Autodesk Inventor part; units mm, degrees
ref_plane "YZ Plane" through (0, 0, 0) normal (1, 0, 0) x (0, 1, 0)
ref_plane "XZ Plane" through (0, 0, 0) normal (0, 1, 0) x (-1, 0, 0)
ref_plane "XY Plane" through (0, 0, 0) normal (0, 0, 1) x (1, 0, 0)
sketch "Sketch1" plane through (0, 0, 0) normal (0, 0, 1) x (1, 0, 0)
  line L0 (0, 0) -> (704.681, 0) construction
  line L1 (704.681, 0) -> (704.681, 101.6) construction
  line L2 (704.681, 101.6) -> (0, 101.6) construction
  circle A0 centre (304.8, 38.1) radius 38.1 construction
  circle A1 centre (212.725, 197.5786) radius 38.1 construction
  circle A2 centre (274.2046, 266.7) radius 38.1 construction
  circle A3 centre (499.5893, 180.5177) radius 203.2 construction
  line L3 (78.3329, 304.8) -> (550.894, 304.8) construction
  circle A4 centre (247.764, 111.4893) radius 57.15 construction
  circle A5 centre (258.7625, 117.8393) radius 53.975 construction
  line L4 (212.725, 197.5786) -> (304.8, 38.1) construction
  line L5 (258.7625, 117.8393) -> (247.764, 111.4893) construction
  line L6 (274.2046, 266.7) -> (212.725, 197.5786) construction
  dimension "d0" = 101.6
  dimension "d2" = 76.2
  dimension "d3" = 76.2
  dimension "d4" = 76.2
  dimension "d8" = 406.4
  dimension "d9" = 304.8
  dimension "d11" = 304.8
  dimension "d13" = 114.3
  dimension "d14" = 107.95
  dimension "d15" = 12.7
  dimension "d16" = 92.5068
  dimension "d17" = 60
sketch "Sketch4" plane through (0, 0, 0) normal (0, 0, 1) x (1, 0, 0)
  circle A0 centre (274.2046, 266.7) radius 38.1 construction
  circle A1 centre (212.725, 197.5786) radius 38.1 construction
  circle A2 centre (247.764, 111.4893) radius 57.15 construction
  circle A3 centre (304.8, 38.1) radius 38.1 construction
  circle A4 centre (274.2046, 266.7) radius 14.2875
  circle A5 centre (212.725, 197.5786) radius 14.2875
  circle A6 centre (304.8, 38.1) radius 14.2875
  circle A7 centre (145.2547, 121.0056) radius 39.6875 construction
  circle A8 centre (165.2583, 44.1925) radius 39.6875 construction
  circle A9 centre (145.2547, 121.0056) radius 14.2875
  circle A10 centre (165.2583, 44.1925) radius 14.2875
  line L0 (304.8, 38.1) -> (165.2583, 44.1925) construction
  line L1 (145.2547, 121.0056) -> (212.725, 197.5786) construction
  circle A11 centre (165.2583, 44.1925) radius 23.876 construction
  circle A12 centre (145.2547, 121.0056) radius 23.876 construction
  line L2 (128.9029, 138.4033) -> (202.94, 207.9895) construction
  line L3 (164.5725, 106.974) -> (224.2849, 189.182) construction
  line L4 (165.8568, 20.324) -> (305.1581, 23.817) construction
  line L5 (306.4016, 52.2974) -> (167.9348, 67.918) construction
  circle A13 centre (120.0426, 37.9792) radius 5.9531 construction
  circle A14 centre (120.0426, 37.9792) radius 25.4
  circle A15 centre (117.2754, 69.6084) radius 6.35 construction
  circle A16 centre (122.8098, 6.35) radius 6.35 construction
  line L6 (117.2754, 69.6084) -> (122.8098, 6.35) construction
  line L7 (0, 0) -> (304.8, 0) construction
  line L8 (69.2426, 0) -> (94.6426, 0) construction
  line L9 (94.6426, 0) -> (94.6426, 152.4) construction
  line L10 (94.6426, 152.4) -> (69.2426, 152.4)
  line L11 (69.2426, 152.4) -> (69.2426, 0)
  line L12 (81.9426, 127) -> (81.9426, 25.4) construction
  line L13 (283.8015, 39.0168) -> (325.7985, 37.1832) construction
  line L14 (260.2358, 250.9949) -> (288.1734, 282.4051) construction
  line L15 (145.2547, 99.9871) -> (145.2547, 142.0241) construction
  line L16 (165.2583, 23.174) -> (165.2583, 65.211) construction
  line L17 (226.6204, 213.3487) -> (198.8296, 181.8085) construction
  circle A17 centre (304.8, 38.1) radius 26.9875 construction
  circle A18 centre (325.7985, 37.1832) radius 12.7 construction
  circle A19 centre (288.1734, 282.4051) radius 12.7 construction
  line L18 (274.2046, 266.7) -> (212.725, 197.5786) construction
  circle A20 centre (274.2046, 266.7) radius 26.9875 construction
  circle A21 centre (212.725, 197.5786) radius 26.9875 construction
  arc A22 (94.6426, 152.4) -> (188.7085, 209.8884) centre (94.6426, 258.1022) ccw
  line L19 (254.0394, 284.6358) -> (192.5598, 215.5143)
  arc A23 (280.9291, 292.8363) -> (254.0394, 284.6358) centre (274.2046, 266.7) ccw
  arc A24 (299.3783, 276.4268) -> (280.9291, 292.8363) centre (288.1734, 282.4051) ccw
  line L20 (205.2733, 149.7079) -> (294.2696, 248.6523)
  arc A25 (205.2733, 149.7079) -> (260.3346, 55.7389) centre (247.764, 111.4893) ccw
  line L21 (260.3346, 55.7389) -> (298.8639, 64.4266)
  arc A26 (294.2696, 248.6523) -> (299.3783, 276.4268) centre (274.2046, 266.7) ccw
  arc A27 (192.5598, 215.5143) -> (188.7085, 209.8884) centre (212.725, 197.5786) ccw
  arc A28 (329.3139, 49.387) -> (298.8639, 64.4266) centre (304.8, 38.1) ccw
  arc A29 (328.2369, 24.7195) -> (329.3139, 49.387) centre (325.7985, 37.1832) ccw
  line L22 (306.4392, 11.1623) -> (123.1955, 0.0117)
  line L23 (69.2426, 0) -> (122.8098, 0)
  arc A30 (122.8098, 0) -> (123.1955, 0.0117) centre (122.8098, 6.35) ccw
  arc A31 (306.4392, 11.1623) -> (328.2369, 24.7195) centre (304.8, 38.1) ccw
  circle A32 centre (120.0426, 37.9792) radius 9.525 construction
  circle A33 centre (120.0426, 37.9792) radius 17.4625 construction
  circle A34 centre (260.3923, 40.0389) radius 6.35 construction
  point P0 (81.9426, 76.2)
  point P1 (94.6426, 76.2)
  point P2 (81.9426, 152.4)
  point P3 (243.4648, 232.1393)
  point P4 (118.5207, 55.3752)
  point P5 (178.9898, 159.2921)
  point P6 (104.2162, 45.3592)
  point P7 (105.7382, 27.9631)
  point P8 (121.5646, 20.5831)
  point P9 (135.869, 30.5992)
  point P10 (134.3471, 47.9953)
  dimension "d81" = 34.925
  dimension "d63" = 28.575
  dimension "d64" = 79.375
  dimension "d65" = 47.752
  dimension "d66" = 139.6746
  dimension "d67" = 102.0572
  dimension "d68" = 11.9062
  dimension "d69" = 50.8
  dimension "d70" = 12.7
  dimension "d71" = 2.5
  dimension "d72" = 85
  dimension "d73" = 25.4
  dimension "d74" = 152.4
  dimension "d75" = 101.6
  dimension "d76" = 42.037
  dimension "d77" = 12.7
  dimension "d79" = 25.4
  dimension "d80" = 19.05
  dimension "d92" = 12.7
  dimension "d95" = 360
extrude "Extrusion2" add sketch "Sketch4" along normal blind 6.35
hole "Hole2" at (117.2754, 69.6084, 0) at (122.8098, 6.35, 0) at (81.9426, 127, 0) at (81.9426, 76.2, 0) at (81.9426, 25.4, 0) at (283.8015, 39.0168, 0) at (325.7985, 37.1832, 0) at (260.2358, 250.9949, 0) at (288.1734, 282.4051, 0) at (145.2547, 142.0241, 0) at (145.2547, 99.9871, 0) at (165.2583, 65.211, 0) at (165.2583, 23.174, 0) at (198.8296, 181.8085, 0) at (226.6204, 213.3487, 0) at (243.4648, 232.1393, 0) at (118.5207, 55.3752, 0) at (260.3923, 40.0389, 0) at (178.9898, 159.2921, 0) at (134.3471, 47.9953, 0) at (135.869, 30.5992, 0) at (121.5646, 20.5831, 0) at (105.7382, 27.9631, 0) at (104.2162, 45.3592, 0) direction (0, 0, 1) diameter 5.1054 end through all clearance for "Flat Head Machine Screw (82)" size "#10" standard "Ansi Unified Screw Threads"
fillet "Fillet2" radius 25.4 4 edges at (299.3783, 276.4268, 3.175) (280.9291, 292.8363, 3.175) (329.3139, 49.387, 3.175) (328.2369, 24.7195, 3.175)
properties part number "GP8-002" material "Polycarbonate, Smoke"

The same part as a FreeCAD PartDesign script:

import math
import FreeCAD as App
import Part
import Sketcher
from FreeCAD import Vector
Q = App.Units.Quantity


def edges_at(feature, points):
    """Names of the edges that pass closest to the given points."""
    edges = feature.Shape.Edges
    near = lambda p: min(range(len(edges)), key=lambda i: edges[i].distToShape(Part.Vertex(*p))[0])
    return sorted({f"Edge{near(p) + 1}" for p in points})

doc = App.newDocument("Part")
params = doc.addObject("Spreadsheet::Sheet", "Params")
for row, (alias, value) in enumerate([
    ("sketch1_diameter", "2 in"),
    ("sketch1_radius", "0.5 in"),
    ("sketch1_radius2", "0.5 in"),
    ("sketch1_width", "1 in"),
    ("sketch1_height", "6 in"),
    ("pad1_length", "0.25 in"),
    ("sketch2_diameter", "0.201 in"),
    ("hole_diameter", "0.201 in"),
    ("fillet_radius", "1 in"),
], start=1):
    params.set(f"A{row}", alias)
    params.set(f"B{row}", "=" + value)
    params.setAlias(f"B{row}", alias)

body = doc.addObject("PartDesign::Body", "Body")

# Sketch on XY plane
sketch1 = body.newObject("Sketcher::SketchObject", "Sketch")
sketch1.AttachmentSupport = (doc.getObject("XY_Plane"), [""])
sketch1.MapMode = "FlatFace"
sketch1.addGeometry([
    Part.ArcOfCircle(Part.Circle(Vector(94.6426, 258.1022, 0), Vector(0, 0, 1), 105.7022), math.radians(-90), math.radians(-27.137564)),  # 0
    Part.LineSegment(Vector(94.6426, 152.4, 0), Vector(69.2426, 152.4, 0)),  # 1
    Part.LineSegment(Vector(69.2426, 152.4, 0), Vector(69.2426, 0, 0)),  # 2
    Part.LineSegment(Vector(69.2426, 0, 0), Vector(122.8098, 0, 0)),  # 3
    Part.ArcOfCircle(Part.Circle(Vector(122.809395, 6.376663, 0), Vector(0, 0, 1), 6.376663), math.radians(-89.99636), math.radians(-86.528633)),  # 4
    Part.LineSegment(Vector(123.1955, 0.0117, 0), Vector(306.4392, 11.1623, 0)),  # 5
    Part.ArcOfCircle(Part.Circle(Vector(304.8, 38.1, 0), Vector(0, 0, 1), 26.9875), math.radians(-86.517759), math.radians(-29.722735)),  # 6
    Part.ArcOfCircle(Part.Circle(Vector(325.7985, 37.1832, 0), Vector(0, 0, 1), 12.7), math.radians(-78.930462), math.radians(73.930541)),  # 7
    Part.ArcOfCircle(Part.Circle(Vector(304.8, 38.1, 0), Vector(0, 0, 1), 26.987528), math.radians(24.722887), math.radians(102.706512)),  # 8
    Part.LineSegment(Vector(298.8639, 64.4266, 0), Vector(260.3346, 55.7389, 0)),  # 9
    Part.ArcOfCircle(Part.Circle(Vector(247.764, 111.4893, 0), Vector(0, 0, 1), 57.15), math.radians(138.029949), math.radians(282.706557)),  # 10
    Part.LineSegment(Vector(205.2733, 149.7079, 0), Vector(294.2696, 248.6523, 0)),  # 11
    Part.ArcOfCircle(Part.Circle(Vector(274.2046, 266.7, 0), Vector(0, 0, 1), 26.9875), math.radians(-41.97017), math.radians(21.125903)),  # 12
    Part.ArcOfCircle(Part.Circle(Vector(288.1734, 282.4051, 0), Vector(0, 0, 1), 12.699994), math.radians(-28.081855), math.radians(124.779355)),  # 13
    Part.ArcOfCircle(Part.Circle(Vector(274.2046, 266.7, 0), Vector(0, 0, 1), 26.9875), math.radians(75.571543), math.radians(138.348724)),  # 14
    Part.LineSegment(Vector(254.0394, 284.6358, 0), Vector(192.5598, 215.5143, 0)),  # 15
    Part.ArcOfCircle(Part.Circle(Vector(212.723925, 197.57944, 0), Vector(0, 0, 1), 26.986129), math.radians(138.348699), math.radians(152.862868)),  # 16
    Part.Circle(Vector(120.0426, 37.9792, 0), Vector(0, 0, 1), 25.4),  # 17
    Part.Circle(Vector(165.2583, 44.1925, 0), Vector(0, 0, 1), 14.2875),  # 18
    Part.Circle(Vector(145.2547, 121.0056, 0), Vector(0, 0, 1), 14.2875),  # 19
    Part.Circle(Vector(304.8, 38.1, 0), Vector(0, 0, 1), 14.2875),  # 20
    Part.Circle(Vector(212.725, 197.5786, 0), Vector(0, 0, 1), 14.2875),  # 21
    Part.Circle(Vector(274.2046, 266.7, 0), Vector(0, 0, 1), 14.2875),  # 22
], False)
sketch1.addConstraint([
    Sketcher.Constraint("Coincident", 0, 1, 1, 1),
    Sketcher.Constraint("Coincident", 1, 2, 2, 1),
    Sketcher.Constraint("Coincident", 2, 2, 3, 1),
    Sketcher.Constraint("Coincident", 3, 2, 4, 1),
    Sketcher.Constraint("Coincident", 4, 2, 5, 1),
    Sketcher.Constraint("Coincident", 5, 2, 6, 1),
    Sketcher.Constraint("Coincident", 6, 2, 7, 1),
    Sketcher.Constraint("Coincident", 7, 2, 8, 1),
    Sketcher.Constraint("Coincident", 8, 2, 9, 1),
    Sketcher.Constraint("Coincident", 9, 2, 10, 2),
    Sketcher.Constraint("Coincident", 10, 1, 11, 1),
    Sketcher.Constraint("Coincident", 11, 2, 12, 1),
    Sketcher.Constraint("Coincident", 12, 2, 13, 1),
    Sketcher.Constraint("Coincident", 13, 2, 14, 1),
    Sketcher.Constraint("Coincident", 14, 2, 15, 1),
    Sketcher.Constraint("Coincident", 15, 2, 16, 1),
    Sketcher.Constraint("Coincident", 16, 2, 0, 2),
    Sketcher.Constraint("Horizontal", 1),
    Sketcher.Constraint("Vertical", 2),
    Sketcher.Constraint("Horizontal", 3),
    Sketcher.Constraint("Coincident", 8, 3, 6, 3),
    Sketcher.Constraint("Coincident", 14, 3, 12, 3),
    Sketcher.Constraint("Coincident", 20, 3, 6, 3),
    Sketcher.Constraint("Coincident", 22, 3, 12, 3),
    Sketcher.Constraint("PointOnObject", 2, 2, -1),
    Sketcher.Constraint("Diameter", 17, Q("2 in")),
    Sketcher.Constraint("Radius", 7, Q("0.5 in")),
    Sketcher.Constraint("Radius", 13, Q("0.5 in")),
    Sketcher.Constraint("DistanceX", 1, 2, 1, 1, Q("1 in")),
    Sketcher.Constraint("DistanceY", 2, 2, 2, 1, Q("6 in")),
    Sketcher.Constraint("Diameter", 18, Q("1.125 in")),
    Sketcher.Constraint("Diameter", 19, Q("1.125 in")),
    Sketcher.Constraint("Diameter", 20, Q("1.125 in")),
    Sketcher.Constraint("Diameter", 21, Q("1.125 in")),
    Sketcher.Constraint("Diameter", 22, Q("1.125 in")),
    Sketcher.Constraint("DistanceX", 0, 1, 17, 3, Q("1 in")),
    Sketcher.Constraint("DistanceX", 1, 2, 0, 3, Q("1 in")),
    Sketcher.Constraint("Radius", 10, Q("2.25 in")),
    Sketcher.Constraint("DistanceX", -1, 1, 6, 3, Q("12 in")),
    Sketcher.Constraint("Radius", 6, Q("1.0625 in")),
    Sketcher.Constraint("Radius", 8, Q("1.0625 in")),
    Sketcher.Constraint("Radius", 12, Q("1.0625 in")),
    Sketcher.Constraint("Radius", 14, Q("1.0625 in")),
    Sketcher.Constraint("DistanceY", 6, 3, 12, 3, Q("9 in")),
    Sketcher.Constraint("DistanceY", -1, 1, 6, 3, Q("1.5 in")),
    Sketcher.Constraint("Radius", 0, Q("4.1615 in")),
    Sketcher.Constraint("Radius", 4, Q("6.3767 mm")),
    Sketcher.Constraint("Radius", 16, Q("26.9861 mm")),
    Sketcher.Constraint("DistanceX", 13, 3, 11, 2, Q("0.24 in")),
    Sketcher.Constraint("Distance", 15, Q("3.642 in")),
    Sketcher.Constraint("DistanceY", -1, 1, 19, 3, Q("4.764 in")),
    Sketcher.Constraint("DistanceX", -1, 1, 21, 3, Q("8.375 in")),
    Sketcher.Constraint("DistanceY", -1, 1, 13, 2, Q("11.529 in")),
    Sketcher.Constraint("DistanceX", 12, 3, 7, 3, Q("51.594 mm")),
    Sketcher.Constraint("DistanceX", 7, 3, 6, 2, Q("0.096 in")),
    Sketcher.Constraint("DistanceX", 3, 1, 3, 2, Q("53.5672 mm")),
    Sketcher.Constraint("DistanceY", -1, 1, 7, 3, Q("1.4639 in")),
    Sketcher.Constraint("DistanceX", -1, 1, 10, 3, Q("9.7545 in")),
    Sketcher.Constraint("DistanceX", -1, 1, 13, 3, Q("11.3454 in")),
    Sketcher.Constraint("DistanceX", -1, 1, 19, 3, Q("5.7187 in")),
    Sketcher.Constraint("DistanceX", -1, 1, 8, 2, Q("11.7663 in")),
    Sketcher.Constraint("DistanceX", -1, 1, 9, 2, Q("10.2494 in")),
    Sketcher.Constraint("DistanceX", -1, 1, 15, 2, Q("7.5811 in")),
    Sketcher.Constraint("DistanceX", 4, 3, 7, 3, Q("7.9917 in")),
    Sketcher.Constraint("DistanceY", 4, 3, 10, 3, Q("4.1383 in")),
    Sketcher.Constraint("DistanceX", 0, 3, 10, 3, Q("6.0284 in")),
    Sketcher.Constraint("DistanceX", 16, 3, 12, 3, Q("2.4205 in")),
    Sketcher.Constraint("DistanceY", 4, 3, 17, 3, Q("1.2442 in")),
    Sketcher.Constraint("DistanceX", 3, 2, 18, 3, Q("1.6712 in")),
    Sketcher.Constraint("DistanceX", 4, 3, 4, 2, Q("0.0152 in")),
    Sketcher.Constraint("DistanceY", 4, 2, 18, 3, Q("1.7394 in")),
    Sketcher.Constraint("DistanceY", 10, 1, 16, 3, Q("1.8847 in")),
    Sketcher.Constraint("DistanceY", 16, 2, 15, 2, Q("0.2215 in")),
    Sketcher.Constraint("Distance", 5, Q("183.5827 mm")),
    Sketcher.Constraint("DistanceY", -1, 1, 21, 3, Q("197.5786 mm")),
])
sketch1.setExpression("Constraints[25]", "Params.sketch1_diameter")
sketch1.setExpression("Constraints[26]", "Params.sketch1_radius")
sketch1.setExpression("Constraints[27]", "Params.sketch1_radius2")
sketch1.setExpression("Constraints[28]", "Params.sketch1_width")
sketch1.setExpression("Constraints[29]", "Params.sketch1_height")
pad1 = body.newObject("PartDesign::Pad", "Pad")
pad1.Profile = sketch1
pad1.setExpression("Length", "Params.pad1_length")

# Sketch on XY plane
sketch2 = body.newObject("Sketcher::SketchObject", "Sketch001")
sketch2.AttachmentSupport = (doc.getObject("XY_Plane"), [""])
sketch2.MapMode = "FlatFace"
sketch2.addGeometry([
    Part.Circle(Vector(117.2754, 69.6084, 0), Vector(0, 0, 1), 2.5527),  # 0
    Part.Circle(Vector(122.8098, 6.35, 0), Vector(0, 0, 1), 2.5527),  # 1
    Part.Circle(Vector(81.9426, 127, 0), Vector(0, 0, 1), 2.5527),  # 2
    Part.Circle(Vector(81.9426, 76.2, 0), Vector(0, 0, 1), 2.5527),  # 3
    Part.Circle(Vector(81.9426, 25.4, 0), Vector(0, 0, 1), 2.5527),  # 4
    Part.Circle(Vector(283.8015, 39.0168, 0), Vector(0, 0, 1), 2.5527),  # 5
    Part.Circle(Vector(325.7985, 37.1832, 0), Vector(0, 0, 1), 2.5527),  # 6
    Part.Circle(Vector(260.2358, 250.9949, 0), Vector(0, 0, 1), 2.5527),  # 7
    Part.Circle(Vector(288.1734, 282.4051, 0), Vector(0, 0, 1), 2.5527),  # 8
    Part.Circle(Vector(145.2547, 142.0241, 0), Vector(0, 0, 1), 2.5527),  # 9
    Part.Circle(Vector(145.2547, 99.9871, 0), Vector(0, 0, 1), 2.5527),  # 10
    Part.Circle(Vector(165.2583, 65.211, 0), Vector(0, 0, 1), 2.5527),  # 11
    Part.Circle(Vector(165.2583, 23.174, 0), Vector(0, 0, 1), 2.5527),  # 12
    Part.Circle(Vector(198.8296, 181.8085, 0), Vector(0, 0, 1), 2.5527),  # 13
    Part.Circle(Vector(226.6204, 213.3487, 0), Vector(0, 0, 1), 2.5527),  # 14
    Part.Circle(Vector(243.4648, 232.1393, 0), Vector(0, 0, 1), 2.5527),  # 15
    Part.Circle(Vector(118.5207, 55.3752, 0), Vector(0, 0, 1), 2.5527),  # 16
    Part.Circle(Vector(260.3923, 40.0389, 0), Vector(0, 0, 1), 2.5527),  # 17
    Part.Circle(Vector(178.9898, 159.2921, 0), Vector(0, 0, 1), 2.5527),  # 18
    Part.Circle(Vector(134.3471, 47.9953, 0), Vector(0, 0, 1), 2.5527),  # 19
    Part.Circle(Vector(135.869, 30.5992, 0), Vector(0, 0, 1), 2.5527),  # 20
    Part.Circle(Vector(121.5646, 20.5831, 0), Vector(0, 0, 1), 2.5527),  # 21
    Part.Circle(Vector(105.7382, 27.9631, 0), Vector(0, 0, 1), 2.5527),  # 22
    Part.Circle(Vector(104.2162, 45.3592, 0), Vector(0, 0, 1), 2.5527),  # 23
], False)
sketch2.addConstraint([
    Sketcher.Constraint("Equal", 0, 1),
    Sketcher.Constraint("Equal", 1, 2),
    Sketcher.Constraint("Equal", 2, 3),
    Sketcher.Constraint("Equal", 3, 4),
    Sketcher.Constraint("Equal", 4, 5),
    Sketcher.Constraint("Equal", 5, 6),
    Sketcher.Constraint("Equal", 6, 7),
    Sketcher.Constraint("Equal", 7, 8),
    Sketcher.Constraint("Equal", 8, 9),
    Sketcher.Constraint("Equal", 9, 10),
    Sketcher.Constraint("Equal", 10, 11),
    Sketcher.Constraint("Equal", 11, 12),
    Sketcher.Constraint("Equal", 12, 13),
    Sketcher.Constraint("Equal", 13, 14),
    Sketcher.Constraint("Equal", 14, 15),
    Sketcher.Constraint("Equal", 15, 16),
    Sketcher.Constraint("Equal", 16, 17),
    Sketcher.Constraint("Equal", 17, 18),
    Sketcher.Constraint("Equal", 18, 19),
    Sketcher.Constraint("Equal", 19, 20),
    Sketcher.Constraint("Equal", 20, 21),
    Sketcher.Constraint("Equal", 21, 22),
    Sketcher.Constraint("Equal", 22, 23),
    Sketcher.Constraint("Vertical", 2, 3, 3, 3),
    Sketcher.Constraint("Vertical", 3, 3, 4, 3),
    Sketcher.Constraint("Vertical", 9, 3, 10, 3),
    Sketcher.Constraint("Vertical", 11, 3, 12, 3),
    Sketcher.Constraint("Diameter", 0, Q("0.201 in")),
    Sketcher.Constraint("DistanceY", -1, 1, 2, 3, Q("5 in")),
    Sketcher.Constraint("DistanceY", -1, 1, 3, 3, Q("3 in")),
    Sketcher.Constraint("DistanceY", -1, 1, 4, 3, Q("1 in")),
    Sketcher.Constraint("DistanceY", -1, 1, 1, 3, Q("0.25 in")),
    Sketcher.Constraint("DistanceX", -1, 1, 21, 3, Q("4.786 in")),
    Sketcher.Constraint("DistanceX", -1, 1, 23, 3, Q("4.103 in")),
    Sketcher.Constraint("DistanceY", 0, 3, 9, 3, Q("2.851 in")),
    Sketcher.Constraint("DistanceY", 0, 3, 10, 3, Q("1.196 in")),
    Sketcher.Constraint("DistanceY", 12, 3, 11, 3, Q("1.655 in")),
    Sketcher.Constraint("DistanceY", 12, 3, 0, 3, Q("1.828126 in")),
    Sketcher.Constraint("DistanceY", 14, 3, 8, 3, Q("2.7187559 in")),
    Sketcher.Constraint("DistanceX", 16, 3, 20, 3, Q("0.683 in")),
    Sketcher.Constraint("DistanceY", -1, 1, 0, 3, Q("2.7405 in")),
    Sketcher.Constraint("DistanceY", -1, 1, 5, 3, Q("1.5361 in")),
    Sketcher.Constraint("DistanceY", -1, 1, 6, 3, Q("1.4639 in")),
    Sketcher.Constraint("DistanceX", -1, 1, 7, 3, Q("10.2455 in")),
    Sketcher.Constraint("DistanceY", -1, 1, 7, 3, Q("9.8817 in")),
    Sketcher.Constraint("DistanceX", -1, 1, 8, 3, Q("11.3454 in")),
    Sketcher.Constraint("DistanceY", -1, 1, 8, 3, Q("11.1183 in")),
    Sketcher.Constraint("DistanceX", -1, 1, 9, 3, Q("5.7187 in")),
    Sketcher.Constraint("DistanceY", -1, 1, 20, 3, Q("1.2047 in")),
    Sketcher.Constraint("DistanceY", -1, 1, 22, 3, Q("1.1009 in")),
    Sketcher.Constraint("DistanceY", -1, 1, 23, 3, Q("1.7858 in")),
    Sketcher.Constraint("DistanceX", 0, 3, 1, 3, Q("0.2179 in")),
    Sketcher.Constraint("DistanceX", 4, 3, 5, 3, Q("7.9472 in")),
    Sketcher.Constraint("DistanceX", 7, 3, 6, 3, Q("2.5812 in")),
    Sketcher.Constraint("DistanceX", 2, 3, 9, 3, Q("2.4926 in")),
    Sketcher.Constraint("DistanceX", 0, 3, 11, 3, Q("1.8891 in")),
    Sketcher.Constraint("DistanceX", 11, 3, 13, 3, Q("1.3217 in")),
    Sketcher.Constraint("DistanceX", 13, 3, 15, 3, Q("1.7573 in")),
    Sketcher.Constraint("DistanceX", 18, 3, 13, 3, Q("0.7811 in")),
    Sketcher.Constraint("DistanceY", 19, 3, 0, 3, Q("0.8509 in")),
    Sketcher.Constraint("DistanceX", 22, 3, 1, 3, Q("0.6721 in")),
    Sketcher.Constraint("DistanceX", -1, 1, 0, 3, Q("117.2754 mm")),
    Sketcher.Constraint("DistanceY", -1, 1, 13, 3, Q("181.8085 mm")),
    Sketcher.Constraint("DistanceX", -1, 1, 14, 3, Q("226.6204 mm")),
    Sketcher.Constraint("DistanceY", -1, 1, 15, 3, Q("232.1393 mm")),
    Sketcher.Constraint("DistanceX", -1, 1, 16, 3, Q("118.5207 mm")),
    Sketcher.Constraint("DistanceY", -1, 1, 16, 3, Q("55.3752 mm")),
    Sketcher.Constraint("DistanceX", -1, 1, 17, 3, Q("260.3923 mm")),
    Sketcher.Constraint("DistanceY", -1, 1, 17, 3, Q("40.039 mm")),
    Sketcher.Constraint("DistanceY", -1, 1, 18, 3, Q("159.292 mm")),
    Sketcher.Constraint("DistanceX", -1, 1, 19, 3, Q("134.347 mm")),
    Sketcher.Constraint("DistanceY", -1, 1, 21, 3, Q("20.583 mm")),
])
sketch2.setExpression("Constraints[27]", "Params.sketch2_diameter")
doc.recompute()
hole = body.newObject("PartDesign::Hole", "Hole")
hole.Profile = sketch2
hole.ThreadType = "None"
hole.setExpression("Diameter", "Params.hole_diameter")
hole.DepthType = "ThroughAll"
hole.Reversed = True
doc.recompute()

fillet = body.newObject("PartDesign::Fillet", "Fillet")
fillet.Base = (hole, edges_at(hole, [
    (299.378, 276.427, 3.175),
    (280.929, 292.836, 3.175),
    (329.314, 49.387, 3.175),
    (328.237, 24.72, 3.175),
]))
fillet.setExpression("Radius", "Params.fillet_radius")

doc.recompute()
